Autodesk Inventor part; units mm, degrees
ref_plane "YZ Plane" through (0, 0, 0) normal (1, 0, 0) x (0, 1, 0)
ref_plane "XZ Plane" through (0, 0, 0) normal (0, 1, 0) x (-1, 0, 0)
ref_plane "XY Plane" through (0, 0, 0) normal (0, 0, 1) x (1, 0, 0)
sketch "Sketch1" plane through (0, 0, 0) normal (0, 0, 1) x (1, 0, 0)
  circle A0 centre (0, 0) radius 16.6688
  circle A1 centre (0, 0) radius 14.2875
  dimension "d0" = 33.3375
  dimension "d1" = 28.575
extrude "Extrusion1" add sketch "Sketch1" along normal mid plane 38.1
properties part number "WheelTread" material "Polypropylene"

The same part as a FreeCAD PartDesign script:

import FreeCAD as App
import Part
import Sketcher

V = App.Vector
Q = App.Units.Quantity

doc = App.newDocument("Part")
params = doc.addObject("Spreadsheet::Sheet", "Params")
for row, (alias, value) in enumerate([
    ("sketch1_diameter", "1.3125 in"),
    ("sketch1_diameter2", "1.125 in"),
    ("pad1_length", "1.5 in"),
], start=1):
    params.set(f"A{row}", alias)
    params.set(f"B{row}", "=" + value)
    params.setAlias(f"B{row}", alias)

body = doc.addObject("PartDesign::Body", "Body")

# Sketch on XY plane
sketch1 = body.newObject("Sketcher::SketchObject", "Sketch")
sketch1.AttachmentSupport = (doc.getObject("XY_Plane"), [""])
sketch1.MapMode = "FlatFace"
sketch1.addGeometry([
    Part.Circle(V(0, 0, 0), V(0, 0, 1), 17),
    Part.Circle(V(0, 0, 0), V(0, 0, 1), 14),
], False)
sketch1.addConstraint([
    Sketcher.Constraint("Coincident", 0, 3, -1, 1),
    Sketcher.Constraint("Coincident", 1, 3, -1, 1),
    Sketcher.Constraint("Diameter", 0, Q("1.3125 in")),
    Sketcher.Constraint("Diameter", 1, Q("1.125 in")),
])
sketch1.setExpression("Constraints[2]", "Params.sketch1_diameter")
sketch1.setExpression("Constraints[3]", "Params.sketch1_diameter2")
pad1 = body.newObject("PartDesign::Pad", "Pad")
pad1.Profile = sketch1
pad1.setExpression("Length", "Params.pad1_length")
pad1.Midplane = True

doc.recompute()
